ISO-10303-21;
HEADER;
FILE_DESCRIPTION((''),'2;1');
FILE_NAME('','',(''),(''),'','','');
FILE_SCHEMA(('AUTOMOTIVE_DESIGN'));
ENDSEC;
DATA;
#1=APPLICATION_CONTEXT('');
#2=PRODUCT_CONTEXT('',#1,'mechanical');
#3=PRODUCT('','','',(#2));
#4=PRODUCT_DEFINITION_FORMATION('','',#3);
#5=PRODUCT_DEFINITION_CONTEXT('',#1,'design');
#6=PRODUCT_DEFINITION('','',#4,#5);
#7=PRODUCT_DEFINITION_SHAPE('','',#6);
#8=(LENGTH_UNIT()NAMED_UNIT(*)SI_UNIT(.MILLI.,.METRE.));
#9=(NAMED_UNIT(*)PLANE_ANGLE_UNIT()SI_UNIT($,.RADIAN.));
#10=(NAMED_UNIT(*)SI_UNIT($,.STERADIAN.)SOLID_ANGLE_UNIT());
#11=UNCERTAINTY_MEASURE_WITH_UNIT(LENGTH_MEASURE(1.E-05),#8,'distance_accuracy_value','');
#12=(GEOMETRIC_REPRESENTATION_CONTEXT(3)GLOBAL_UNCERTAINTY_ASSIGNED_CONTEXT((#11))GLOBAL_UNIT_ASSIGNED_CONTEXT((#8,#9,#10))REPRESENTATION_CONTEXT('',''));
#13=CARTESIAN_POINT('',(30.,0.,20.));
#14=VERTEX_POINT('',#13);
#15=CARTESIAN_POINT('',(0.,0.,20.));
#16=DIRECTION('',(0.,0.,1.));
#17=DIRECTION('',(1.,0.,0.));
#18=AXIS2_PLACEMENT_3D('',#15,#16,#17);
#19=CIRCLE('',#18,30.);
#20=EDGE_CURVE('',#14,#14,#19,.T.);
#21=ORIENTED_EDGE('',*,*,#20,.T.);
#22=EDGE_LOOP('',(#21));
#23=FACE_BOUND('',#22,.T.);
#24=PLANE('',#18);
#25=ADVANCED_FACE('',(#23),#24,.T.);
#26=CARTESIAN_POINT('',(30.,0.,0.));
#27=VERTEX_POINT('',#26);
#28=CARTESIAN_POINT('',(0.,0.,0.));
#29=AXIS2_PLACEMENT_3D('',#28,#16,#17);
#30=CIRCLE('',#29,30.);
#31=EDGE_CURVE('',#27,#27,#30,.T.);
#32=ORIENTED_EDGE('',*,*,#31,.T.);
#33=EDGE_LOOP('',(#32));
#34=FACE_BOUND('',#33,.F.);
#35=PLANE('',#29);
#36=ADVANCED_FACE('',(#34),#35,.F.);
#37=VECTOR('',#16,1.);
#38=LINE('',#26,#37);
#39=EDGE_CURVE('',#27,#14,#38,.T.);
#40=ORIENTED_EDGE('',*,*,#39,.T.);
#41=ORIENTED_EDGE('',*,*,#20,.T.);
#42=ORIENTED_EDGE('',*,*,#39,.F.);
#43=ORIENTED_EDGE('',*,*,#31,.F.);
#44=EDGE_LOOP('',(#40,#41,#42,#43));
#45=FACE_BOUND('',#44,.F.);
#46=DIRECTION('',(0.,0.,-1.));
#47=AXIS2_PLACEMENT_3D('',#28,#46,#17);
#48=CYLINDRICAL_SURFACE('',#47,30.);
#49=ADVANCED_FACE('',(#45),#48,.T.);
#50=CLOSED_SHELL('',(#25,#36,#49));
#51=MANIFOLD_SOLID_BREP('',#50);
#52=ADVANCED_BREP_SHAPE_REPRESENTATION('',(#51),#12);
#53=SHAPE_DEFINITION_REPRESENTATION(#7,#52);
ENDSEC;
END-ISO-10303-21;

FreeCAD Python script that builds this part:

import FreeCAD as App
import Part
import Sketcher
from FreeCAD import Vector
Q = App.Units.Quantity

doc = App.newDocument("Part")
body = doc.addObject("PartDesign::Body", "Body")

sketch1 = body.newObject("Sketcher::SketchObject", "Sketch")
sketch1.AttachmentSupport = (doc.getObject("XY_Plane"), [""])
sketch1.MapMode = "FlatFace"
sketch1.addGeometry(Part.Circle(Vector(0, 0, 0), Vector(0, 0, 1), 30), False)
sketch1.addConstraint([
    Sketcher.Constraint("Coincident", 0, 3, -1, 1),
    Sketcher.Constraint("Diameter", 0, Q("60 mm")),
])
pad1 = body.newObject("PartDesign::Pad", "Pad")
pad1.Profile = sketch1
pad1.Length = 20

doc.recompute()
